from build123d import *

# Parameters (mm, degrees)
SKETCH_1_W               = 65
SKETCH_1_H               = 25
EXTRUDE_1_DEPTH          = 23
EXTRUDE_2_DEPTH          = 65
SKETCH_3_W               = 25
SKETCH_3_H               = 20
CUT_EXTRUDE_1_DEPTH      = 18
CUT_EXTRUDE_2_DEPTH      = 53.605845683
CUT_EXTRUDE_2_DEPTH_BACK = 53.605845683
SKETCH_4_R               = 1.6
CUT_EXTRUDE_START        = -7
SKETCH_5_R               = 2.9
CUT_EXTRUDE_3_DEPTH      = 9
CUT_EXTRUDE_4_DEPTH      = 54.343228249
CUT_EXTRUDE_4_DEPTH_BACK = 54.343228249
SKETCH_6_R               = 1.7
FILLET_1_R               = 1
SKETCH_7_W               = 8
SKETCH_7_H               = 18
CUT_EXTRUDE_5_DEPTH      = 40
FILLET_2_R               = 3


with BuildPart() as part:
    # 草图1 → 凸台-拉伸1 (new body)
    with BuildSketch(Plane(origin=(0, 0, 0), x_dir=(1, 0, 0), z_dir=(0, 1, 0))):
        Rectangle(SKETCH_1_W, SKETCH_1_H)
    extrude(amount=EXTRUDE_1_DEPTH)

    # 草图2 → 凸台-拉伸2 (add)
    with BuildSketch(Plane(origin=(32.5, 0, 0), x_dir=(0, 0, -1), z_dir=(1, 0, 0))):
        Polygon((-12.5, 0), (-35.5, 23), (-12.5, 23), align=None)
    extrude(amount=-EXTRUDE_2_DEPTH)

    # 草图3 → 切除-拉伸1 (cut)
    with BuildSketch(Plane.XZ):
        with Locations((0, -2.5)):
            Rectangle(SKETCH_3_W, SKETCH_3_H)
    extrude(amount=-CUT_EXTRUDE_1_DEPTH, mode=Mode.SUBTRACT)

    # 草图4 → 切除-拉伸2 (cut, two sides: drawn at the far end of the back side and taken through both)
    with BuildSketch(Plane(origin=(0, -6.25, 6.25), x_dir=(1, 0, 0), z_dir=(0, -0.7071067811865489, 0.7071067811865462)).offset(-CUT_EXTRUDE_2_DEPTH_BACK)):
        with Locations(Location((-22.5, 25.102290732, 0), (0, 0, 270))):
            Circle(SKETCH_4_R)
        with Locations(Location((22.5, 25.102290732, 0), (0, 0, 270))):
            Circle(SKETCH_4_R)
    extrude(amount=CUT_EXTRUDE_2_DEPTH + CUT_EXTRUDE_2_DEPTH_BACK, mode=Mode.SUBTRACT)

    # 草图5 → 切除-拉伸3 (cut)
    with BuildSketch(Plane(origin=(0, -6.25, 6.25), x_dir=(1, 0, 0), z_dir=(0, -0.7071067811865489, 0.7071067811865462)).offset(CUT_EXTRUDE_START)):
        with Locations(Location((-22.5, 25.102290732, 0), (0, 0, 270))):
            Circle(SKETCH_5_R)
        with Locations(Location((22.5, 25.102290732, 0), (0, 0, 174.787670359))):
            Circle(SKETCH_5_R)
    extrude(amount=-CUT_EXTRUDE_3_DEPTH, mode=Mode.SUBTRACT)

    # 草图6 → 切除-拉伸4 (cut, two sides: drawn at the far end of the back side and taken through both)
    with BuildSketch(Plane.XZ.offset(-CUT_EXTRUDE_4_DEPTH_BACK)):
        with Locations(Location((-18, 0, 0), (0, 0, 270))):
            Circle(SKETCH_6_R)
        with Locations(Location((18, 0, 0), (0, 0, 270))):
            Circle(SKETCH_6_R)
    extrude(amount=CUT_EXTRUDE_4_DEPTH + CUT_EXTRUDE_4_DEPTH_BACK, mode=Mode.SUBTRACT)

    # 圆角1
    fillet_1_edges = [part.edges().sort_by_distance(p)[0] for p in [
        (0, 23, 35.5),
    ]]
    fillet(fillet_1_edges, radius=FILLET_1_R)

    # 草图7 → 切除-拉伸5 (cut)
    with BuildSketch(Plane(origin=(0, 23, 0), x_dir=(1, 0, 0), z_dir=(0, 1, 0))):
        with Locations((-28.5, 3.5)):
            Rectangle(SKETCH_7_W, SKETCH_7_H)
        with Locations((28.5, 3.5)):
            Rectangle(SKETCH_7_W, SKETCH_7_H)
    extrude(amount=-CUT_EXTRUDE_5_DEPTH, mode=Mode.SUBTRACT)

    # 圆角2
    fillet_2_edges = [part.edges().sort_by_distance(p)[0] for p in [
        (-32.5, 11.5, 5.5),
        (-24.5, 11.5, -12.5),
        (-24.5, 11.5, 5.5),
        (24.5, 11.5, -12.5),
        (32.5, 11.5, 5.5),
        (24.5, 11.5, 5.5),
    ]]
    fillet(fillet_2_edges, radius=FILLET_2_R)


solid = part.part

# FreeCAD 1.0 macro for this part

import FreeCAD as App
import Part
import Sketcher

V = App.Vector
Q = App.Units.Quantity


def edges_at(feature, points):
    """Names of the edges that pass closest to the given points."""
    edges = feature.Shape.Edges
    near = lambda p: min(range(len(edges)), key=lambda i: edges[i].distToShape(Part.Vertex(*p))[0])
    return sorted({f"Edge{near(p) + 1}" for p in points})

doc = App.newDocument("Part")
params = doc.addObject("Spreadsheet::Sheet", "Params")
for row, (alias, value) in enumerate([
    ("sketch1_width", "65 mm"),
    ("sketch1_height", "25 mm"),
    ("pad1_length", "23 mm"),
    ("sketch2_width", "23 mm"),
    ("pad2_length", "65 mm"),
    ("sketch3_width", "25 mm"),
    ("sketch3_height", "20 mm"),
    ("pocket1_length", "18 mm"),
    ("sketch4_diameter", "3.2 mm"),
    ("sketch5_diameter", "5.8 mm"),
    ("pocket3_length", "9 mm"),
    ("sketch6_diameter", "3.4 mm"),
    ("fillet_radius", "1 mm"),
    ("sketch7_width", "8 mm"),
    ("sketch7_height", "18 mm"),
    ("pocket5_length", "40 mm"),
    ("fillet2_radius", "3 mm"),
], start=1):
    params.set(f"A{row}", alias)
    params.set(f"B{row}", "=" + value)
    params.setAlias(f"B{row}", alias)

body = doc.addObject("PartDesign::Body", "Body")

sketch1 = body.newObject("Sketcher::SketchObject", "Sketch")
sketch1.AttachmentSupport = (doc.getObject("XZ_Plane"), [""])
sketch1.MapMode = "FlatFace"
sketch1.addGeometry([
    Part.LineSegment(V(-32, -12, 0), V(-32, 12, 0)),
    Part.LineSegment(V(-32, 12, 0), V(32, 12, 0)),
    Part.LineSegment(V(32, 12, 0), V(32, -12, 0)),
    Part.LineSegment(V(32, -12, 0), V(-32, -12, 0)),
], False)
sketch1.addConstraint([
    Sketcher.Constraint("Coincident", 0, 2, 1, 1),
    Sketcher.Constraint("Coincident", 1, 2, 2, 1),
    Sketcher.Constraint("Coincident", 2, 2, 3, 1),
    Sketcher.Constraint("Coincident", 3, 2, 0, 1),
    Sketcher.Constraint("Vertical", 0),
    Sketcher.Constraint("Horizontal", 1),
    Sketcher.Constraint("Vertical", 2),
    Sketcher.Constraint("Horizontal", 3),
    Sketcher.Constraint("Symmetric", 0, 2, 2, 2, -1, 1),
    Sketcher.Constraint("DistanceX", 1, 1, 1, 2, Q("65 mm")),
    Sketcher.Constraint("DistanceY", 0, 1, 0, 2, Q("25 mm")),
])
sketch1.setExpression("Constraints[9]", "Params.sketch1_width")
sketch1.setExpression("Constraints[10]", "Params.sketch1_height")
pad1 = body.newObject("PartDesign::Pad", "Pad")
pad1.Profile = sketch1
pad1.setExpression("Length", "Params.pad1_length")
pad1.Reversed = True

sketch2 = body.newObject("Sketcher::SketchObject", "Sketch001")
sketch2.AttachmentSupport = (doc.getObject("YZ_Plane"), [""])
sketch2.MapMode = "FlatFace"
sketch2.AttachmentOffset = App.Placement(V(0, 0, 32.5), App.Rotation())
sketch2.addGeometry([
    Part.LineSegment(V(23, 36, 0), V(0, 12, 0)),
    Part.LineSegment(V(0, 12, 0), V(23, 12, 0)),
    Part.LineSegment(V(23, 12, 0), V(23, 36, 0)),
], False)
sketch2.addConstraint([
    Sketcher.Constraint("Coincident", 0, 2, 1, 1),
    Sketcher.Constraint("Coincident", 1, 2, 2, 1),
    Sketcher.Constraint("Coincident", 2, 2, 0, 1),
    Sketcher.Constraint("Horizontal", 1),
    Sketcher.Constraint("Vertical", 2),
    Sketcher.Constraint("PointOnObject", 0, 2, -2),
    Sketcher.Constraint("Equal", 1, 2),
    Sketcher.Constraint("DistanceX", 1, 1, 1, 2, Q("23 mm")),
    Sketcher.Constraint("DistanceY", -1, 1, 0, 2, Q("12.5 mm")),
])
sketch2.setExpression("Constraints[7]", "Params.sketch2_width")
pad2 = body.newObject("PartDesign::Pad", "Pad001")
pad2.Profile = sketch2
pad2.setExpression("Length", "Params.pad2_length")
pad2.Reversed = True

sketch3 = body.newObject("Sketcher::SketchObject", "Sketch002")
sketch3.AttachmentSupport = (doc.getObject("XZ_Plane"), [""])
sketch3.MapMode = "FlatFace"
sketch3.addGeometry([
    Part.LineSegment(V(-12, 8, 0), V(-12, -12, 0)),
    Part.LineSegment(V(-12, -12, 0), V(12, -12, 0)),
    Part.LineSegment(V(12, -12, 0), V(12, 8, 0)),
    Part.LineSegment(V(12, 8, 0), V(-12, 8, 0)),
], False)
sketch3.addConstraint([
    Sketcher.Constraint("Coincident", 0, 2, 1, 1),
    Sketcher.Constraint("Coincident", 1, 2, 2, 1),
    Sketcher.Constraint("Coincident", 2, 2, 3, 1),
    Sketcher.Constraint("Coincident", 3, 2, 0, 1),
    Sketcher.Constraint("Vertical", 0),
    Sketcher.Constraint("Horizontal", 1),
    Sketcher.Constraint("Vertical", 2),
    Sketcher.Constraint("Horizontal", 3),
    Sketcher.Constraint("DistanceX", 1, 1, 1, 2, Q("25 mm")),
    Sketcher.Constraint("DistanceY", 0, 2, 0, 1, Q("20 mm")),
    Sketcher.Constraint("DistanceX", 0, 2, -1, 1, Q("12.5 mm")),
    Sketcher.Constraint("DistanceY", 0, 2, -1, 1, Q("12.5 mm")),
])
sketch3.setExpression("Constraints[8]", "Params.sketch3_width")
sketch3.setExpression("Constraints[9]", "Params.sketch3_height")
pocket1 = body.newObject("PartDesign::Pocket", "Pocket")
pocket1.Profile = sketch3
pocket1.setExpression("Length", "Params.pocket1_length")

sketch4 = body.newObject("Sketcher::SketchObject", "Sketch003")
sketch4.Placement = App.Placement(V(0, -6.25, 6.25), App.Rotation(V(1, 0, 0), V(0, 0.707106781, 0.707106781), V(0, -0.707106781, 0.707106781), "ZXY"))
sketch4.addGeometry([
    Part.Circle(V(-22.5, 25.1, 0), V(0, 0, 1), 1.6),
    Part.Circle(V(22.5, 25.1, 0), V(0, 0, 1), 1.6),
], False)
sketch4.addConstraint([
    Sketcher.Constraint("Equal", 0, 1),
    Sketcher.Constraint("Symmetric", 0, 3, 1, 3, -2),
    Sketcher.Constraint("Diameter", 0, Q("3.2 mm")),
    Sketcher.Constraint("DistanceX", 0, 3, 1, 3, Q("45 mm")),
    Sketcher.Constraint("DistanceY", -1, 1, 0, 3, Q("25.102291 mm")),
])
sketch4.setExpression("Constraints[2]", "Params.sketch4_diameter")
pocket2 = body.newObject("PartDesign::Pocket", "Pocket001")
pocket2.Profile = sketch4
pocket2.Type = "ThroughAll"
pocket2.Midplane = True

sketch5 = body.newObject("Sketcher::SketchObject", "Sketch004")
sketch5.Placement = App.Placement(V(0, -1.300253, 1.300253), App.Rotation(V(1, 0, 0), V(0, 0.707106781, 0.707106781), V(0, -0.707106781, 0.707106781), "ZXY"))
sketch5.addGeometry([
    Part.Circle(V(-22.5, 25.1, 0), V(0, 0, 1), 2.9),
    Part.Circle(V(22.5, 25.1, 0), V(0, 0, 1), 2.9),
], False)
sketch5.addConstraint([
    Sketcher.Constraint("Equal", 0, 1),
    Sketcher.Constraint("Symmetric", 0, 3, 1, 3, -2),
    Sketcher.Constraint("Diameter", 0, Q("5.8 mm")),
    Sketcher.Constraint("DistanceX", 0, 3, 1, 3, Q("45 mm")),
    Sketcher.Constraint("DistanceY", -1, 1, 0, 3, Q("25.102291 mm")),
])
sketch5.setExpression("Constraints[2]", "Params.sketch5_diameter")
pocket3 = body.newObject("PartDesign::Pocket", "Pocket002")
pocket3.Profile = sketch5
pocket3.setExpression("Length", "Params.pocket3_length")

sketch6 = body.newObject("Sketcher::SketchObject", "Sketch005")
sketch6.AttachmentSupport = (doc.getObject("XZ_Plane"), [""])
sketch6.MapMode = "FlatFace"
sketch6.addGeometry([
    Part.Circle(V(-18, 0, 0), V(0, 0, 1), 1.7),
    Part.Circle(V(18, 0, 0), V(0, 0, 1), 1.7),
], False)
sketch6.addConstraint([
    Sketcher.Constraint("Equal", 0, 1),
    Sketcher.Constraint("Symmetric", 0, 3, 1, 3, -1, 1),
    Sketcher.Constraint("PointOnObject", 0, 3, -1),
    Sketcher.Constraint("Diameter", 0, Q("3.4 mm")),
    Sketcher.Constraint("DistanceX", 0, 3, -1, 1, Q("18 mm")),
])
sketch6.setExpression("Constraints[3]", "Params.sketch6_diameter")
pocket4 = body.newObject("PartDesign::Pocket", "Pocket003")
pocket4.Profile = sketch6
pocket4.Type = "ThroughAll"
pocket4.Midplane = True
doc.recompute()

fillet = body.newObject("PartDesign::Fillet", "Fillet")
fillet.Base = (pocket4, edges_at(pocket4, [(0, 23, 35.5)]))
fillet.setExpression("Radius", "Params.fillet_radius")

sketch7 = body.newObject("Sketcher::SketchObject", "Sketch006")
sketch7.AttachmentSupport = (doc.getObject("XZ_Plane"), [""])
sketch7.MapMode = "FlatFace"
sketch7.AttachmentOffset = App.Placement(V(0, 0, -23), App.Rotation())
sketch7.addGeometry([
    Part.LineSegment(V(-32, -12, 0), V(-32, 6, 0)),
    Part.LineSegment(V(-32, 6, 0), V(-24, 6, 0)),
    Part.LineSegment(V(-24, 6, 0), V(-24, -12, 0)),
    Part.LineSegment(V(-24, -12, 0), V(-32, -12, 0)),
    Part.LineSegment(V(24, -12, 0), V(24, 6, 0)),
    Part.LineSegment(V(24, 6, 0), V(32, 6, 0)),
    Part.LineSegment(V(32, 6, 0), V(32, -12, 0)),
    Part.LineSegment(V(32, -12, 0), V(24, -12, 0)),
], False)
sketch7.addConstraint([
    Sketcher.Constraint("Coincident", 0, 2, 1, 1),
    Sketcher.Constraint("Coincident", 1, 2, 2, 1),
    Sketcher.Constraint("Coincident", 2, 2, 3, 1),
    Sketcher.Constraint("Coincident", 3, 2, 0, 1),
    Sketcher.Constraint("Coincident", 4, 2, 5, 1),
    Sketcher.Constraint("Coincident", 5, 2, 6, 1),
    Sketcher.Constraint("Coincident", 6, 2, 7, 1),
    Sketcher.Constraint("Coincident", 7, 2, 4, 1),
    Sketcher.Constraint("Vertical", 0),
    Sketcher.Constraint("Horizontal", 1),
    Sketcher.Constraint("Vertical", 2),
    Sketcher.Constraint("Horizontal", 3),
    Sketcher.Constraint("Vertical", 4),
    Sketcher.Constraint("Horizontal", 5),
    Sketcher.Constraint("Vertical", 6),
    Sketcher.Constraint("Horizontal", 7),
    Sketcher.Constraint("Symmetric", 1, 2, 4, 2, -2),
    Sketcher.Constraint("Symmetric", 3, 2, 6, 2, -2),
    Sketcher.Constraint("DistanceX", 1, 1, 1, 2, Q("8 mm")),
    Sketcher.Constraint("DistanceY", 0, 1, 0, 2, Q("18 mm")),
    Sketcher.Constraint("DistanceX", 1, 2, 4, 2, Q("49 mm")),
    Sketcher.Constraint("DistanceY", -1, 1, 0, 2, Q("5.5 mm")),
])
sketch7.setExpression("Constraints[18]", "Params.sketch7_width")
sketch7.setExpression("Constraints[19]", "Params.sketch7_height")
pocket5 = body.newObject("PartDesign::Pocket", "Pocket004")
pocket5.Profile = sketch7
pocket5.setExpression("Length", "Params.pocket5_length")
pocket5.Reversed = True
doc.recompute()

fillet2 = body.newObject("PartDesign::Fillet", "Fillet001")
fillet2.Base = (pocket5, edges_at(pocket5, [
    (-32.5, 11.5, 5.5),
    (-24.5, 11.5, -12.5),
    (-24.5, 11.5, 5.5),
    (24.5, 11.5, -12.5),
    (32.5, 11.5, 5.5),
    (24.5, 11.5, 5.5),
]))
fillet2.setExpression("Radius", "Params.fillet2_radius")

doc.recompute()
